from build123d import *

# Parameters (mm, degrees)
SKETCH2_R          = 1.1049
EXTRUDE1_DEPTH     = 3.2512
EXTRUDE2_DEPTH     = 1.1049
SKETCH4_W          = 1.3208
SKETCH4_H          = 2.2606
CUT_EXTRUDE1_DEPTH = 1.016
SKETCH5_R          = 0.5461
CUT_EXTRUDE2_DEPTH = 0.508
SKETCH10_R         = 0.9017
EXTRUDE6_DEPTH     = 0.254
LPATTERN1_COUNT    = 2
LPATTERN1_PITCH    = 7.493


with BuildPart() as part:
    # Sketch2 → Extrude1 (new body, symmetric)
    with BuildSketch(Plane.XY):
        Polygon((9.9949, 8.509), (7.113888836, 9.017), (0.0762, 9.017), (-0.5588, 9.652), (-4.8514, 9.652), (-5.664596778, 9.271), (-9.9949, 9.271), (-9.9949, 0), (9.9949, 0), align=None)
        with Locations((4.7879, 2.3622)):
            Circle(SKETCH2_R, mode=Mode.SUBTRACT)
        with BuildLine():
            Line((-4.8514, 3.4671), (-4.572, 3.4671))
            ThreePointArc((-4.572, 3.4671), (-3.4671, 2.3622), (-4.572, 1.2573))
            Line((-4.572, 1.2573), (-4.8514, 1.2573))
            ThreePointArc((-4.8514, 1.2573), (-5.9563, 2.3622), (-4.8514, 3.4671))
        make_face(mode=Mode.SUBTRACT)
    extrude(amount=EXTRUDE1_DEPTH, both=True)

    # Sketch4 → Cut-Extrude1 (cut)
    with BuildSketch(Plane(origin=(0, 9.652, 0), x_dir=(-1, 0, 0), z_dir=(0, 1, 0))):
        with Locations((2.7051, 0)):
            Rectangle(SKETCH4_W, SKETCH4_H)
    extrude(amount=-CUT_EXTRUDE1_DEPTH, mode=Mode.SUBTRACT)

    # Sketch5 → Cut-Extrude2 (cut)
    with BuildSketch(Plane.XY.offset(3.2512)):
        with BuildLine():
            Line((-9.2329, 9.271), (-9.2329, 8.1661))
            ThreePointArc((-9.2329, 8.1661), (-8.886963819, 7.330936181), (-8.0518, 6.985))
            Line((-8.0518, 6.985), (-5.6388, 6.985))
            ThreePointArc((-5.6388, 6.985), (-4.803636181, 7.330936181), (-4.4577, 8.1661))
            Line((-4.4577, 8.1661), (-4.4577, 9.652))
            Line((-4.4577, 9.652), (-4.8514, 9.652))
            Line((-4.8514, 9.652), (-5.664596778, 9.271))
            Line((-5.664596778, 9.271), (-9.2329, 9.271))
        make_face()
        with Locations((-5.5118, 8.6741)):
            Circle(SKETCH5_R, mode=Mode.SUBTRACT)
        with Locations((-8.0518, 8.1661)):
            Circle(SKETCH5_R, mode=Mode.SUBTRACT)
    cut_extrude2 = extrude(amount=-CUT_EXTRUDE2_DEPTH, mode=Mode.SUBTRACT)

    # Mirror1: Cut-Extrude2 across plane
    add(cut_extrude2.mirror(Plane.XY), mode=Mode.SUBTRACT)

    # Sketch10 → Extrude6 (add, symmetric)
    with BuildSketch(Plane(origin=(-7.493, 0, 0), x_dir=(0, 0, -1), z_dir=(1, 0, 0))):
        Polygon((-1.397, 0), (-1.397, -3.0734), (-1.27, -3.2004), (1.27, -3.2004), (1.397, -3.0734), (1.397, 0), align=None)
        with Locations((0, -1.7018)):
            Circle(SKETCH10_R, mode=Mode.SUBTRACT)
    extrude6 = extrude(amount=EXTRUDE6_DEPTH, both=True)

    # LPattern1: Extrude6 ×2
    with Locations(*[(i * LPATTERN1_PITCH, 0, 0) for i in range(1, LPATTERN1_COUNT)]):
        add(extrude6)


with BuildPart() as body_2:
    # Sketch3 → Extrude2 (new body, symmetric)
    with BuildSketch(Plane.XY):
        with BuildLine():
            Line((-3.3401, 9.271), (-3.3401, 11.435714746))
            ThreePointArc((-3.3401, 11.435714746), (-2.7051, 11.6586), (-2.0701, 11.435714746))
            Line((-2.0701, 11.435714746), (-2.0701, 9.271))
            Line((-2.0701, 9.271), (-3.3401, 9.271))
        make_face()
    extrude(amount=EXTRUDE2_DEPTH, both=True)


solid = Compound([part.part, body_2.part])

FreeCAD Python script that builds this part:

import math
import FreeCAD as App
import Part
import Sketcher
Q = App.Units.Quantity


def add_polygon(sketch, points):
    """Adds a closed chain of lines whose ends are joined by coincident constraints."""
    first, n = sketch.GeometryCount, len(points)
    for a, b in zip(points, points[1:] + points[:1]):
        sketch.addGeometry(Part.LineSegment(App.Vector(*a, 0), App.Vector(*b, 0)), False)
    for i in range(n):
        sketch.addConstraint(Sketcher.Constraint("Coincident", first + i, 2, first + (i + 1) % n, 1))

doc = App.newDocument("Part")
body = doc.addObject("PartDesign::Body", "Body")

sketch1 = body.newObject("Sketcher::SketchObject", "Sketch")
sketch1.AttachmentSupport = (doc.getObject("XY_Plane"), [""])
sketch1.MapMode = "FlatFace"
add_polygon(sketch1, [(9.9949, 8.509), (7.113889, 9.017), (0.0762, 9.017), (-0.5588, 9.652), (-4.8514, 9.652), (-5.664597, 9.271), (-9.9949, 9.271), (-9.9949, 0), (9.9949, 0)])
sketch1.addGeometry(Part.ArcOfCircle(Part.Circle(App.Vector(-4.8514, 2.3622, 0), App.Vector(0, 0, 1), 1.1049), math.radians(90), math.radians(270)), False)
sketch1.addGeometry(Part.LineSegment(App.Vector(-4.8514, 3.4671, 0), App.Vector(-4.572, 3.4671, 0)), False)
sketch1.addGeometry(Part.ArcOfCircle(Part.Circle(App.Vector(-4.572, 2.3622, 0), App.Vector(0, 0, 1), 1.1049), math.radians(-90), math.radians(90)), False)
sketch1.addGeometry(Part.LineSegment(App.Vector(-4.572, 1.2573, 0), App.Vector(-4.8514, 1.2573, 0)), False)
sketch1.addGeometry(Part.Circle(App.Vector(4.7879, 2.3622, 0), App.Vector(0, 0, 1), 1.1049), False)
sketch1.addConstraint(Sketcher.Constraint("Tangent", 9, 1, 10, 1))
sketch1.addConstraint(Sketcher.Constraint("Tangent", 10, 2, 11, 2))
sketch1.addConstraint(Sketcher.Constraint("Tangent", 11, 1, 12, 1))
sketch1.addConstraint(Sketcher.Constraint("Tangent", 12, 2, 9, 2))
sketch1.addConstraint(Sketcher.Constraint("Horizontal", 1))
sketch1.addConstraint(Sketcher.Constraint("Horizontal", 3))
sketch1.addConstraint(Sketcher.Constraint("Horizontal", 5))
sketch1.addConstraint(Sketcher.Constraint("Vertical", 6))
sketch1.addConstraint(Sketcher.Constraint("Horizontal", 7))
sketch1.addConstraint(Sketcher.Constraint("Vertical", 8))
sketch1.addConstraint(Sketcher.Constraint("Horizontal", 10))
sketch1.addConstraint(Sketcher.Constraint("Horizontal", 12))
sketch1.addConstraint(Sketcher.Constraint("Equal", 11, 13))
sketch1.addConstraint(Sketcher.Constraint("Symmetric", 6, 2, 7, 2, -1, 1))
sketch1.addConstraint(Sketcher.Constraint("Horizontal", 11, 3, 13, 3))
sketch1.addConstraint(Sketcher.Constraint("Vertical", 9, 3, 3, 2))
sketch1.addConstraint(Sketcher.Constraint("Equal", 2, 4))
sketch1.addConstraint(Sketcher.Constraint("Diameter", 13, Q("0.087 in")))
sketch1.addConstraint(Sketcher.Constraint("Angle", 0, Q("170 deg")))
sketch1.addConstraint(Sketcher.Constraint("Angle", 2, Q("135 deg")))
sketch1.addConstraint(Sketcher.Constraint("DistanceX", 3, 2, 3, 1, Q("0.169 in")))
sketch1.addConstraint(Sketcher.Constraint("DistanceX", 7, 1, 7, 2, Q("0.787 in")))
sketch1.addConstraint(Sketcher.Constraint("DistanceX", 10, 1, 10, 2, Q("0.011 in")))
sketch1.addConstraint(Sketcher.Constraint("DistanceY", 6, 2, 6, 1, Q("0.365 in")))
sketch1.addConstraint(Sketcher.Constraint("DistanceY", 8, 1, 8, 2, Q("0.335 in")))
sketch1.addConstraint(Sketcher.Constraint("DistanceX", 11, 3, -1, 1, Q("0.18 in")))
sketch1.addConstraint(Sketcher.Constraint("DistanceY", -1, 1, 2, 2, Q("0.38 in")))
sketch1.addConstraint(Sketcher.Constraint("DistanceY", 1, 2, 4, 2, Q("0.01 in")))
sketch1.addConstraint(Sketcher.Constraint("DistanceY", -1, 1, 9, 3, Q("0.093 in")))
sketch1.addConstraint(Sketcher.Constraint("DistanceX", 13, 3, 7, 2, Q("0.205 in")))
pad1 = body.newObject("PartDesign::Pad", "Pad")
pad1.Profile = sketch1
pad1.Length = Q("0.256 in")
pad1.Midplane = True

sketch2 = body.newObject("Sketcher::SketchObject", "Sketch001")
sketch2.AttachmentSupport = (doc.getObject("XZ_Plane"), [""])
sketch2.MapMode = "FlatFace"
sketch2.AttachmentOffset = App.Placement(App.Vector(0, 0, -0.38 * 25.4), App.Rotation())
add_polygon(sketch2, [(-2.0447, 1.1303), (-2.0447, -1.1303), (-3.3655, -1.1303), (-3.3655, 1.1303)])
sketch2.addConstraint(Sketcher.Constraint("Vertical", 0))
sketch2.addConstraint(Sketcher.Constraint("Horizontal", 1))
sketch2.addConstraint(Sketcher.Constraint("Vertical", 2))
sketch2.addConstraint(Sketcher.Constraint("Horizontal", 3))
sketch2.addConstraint(Sketcher.Constraint("DistanceX", 1, 2, 1, 1, Q("0.052 in")))
sketch2.addConstraint(Sketcher.Constraint("DistanceY", 0, 2, 0, 1, Q("0.089 in")))
sketch2.addConstraint(Sketcher.Constraint("DistanceX", 0, 2, -1, 1, Q("0.0805 in")))
sketch2.addConstraint(Sketcher.Constraint("DistanceY", 0, 2, -1, 1, Q("0.0445 in")))
pocket1 = body.newObject("PartDesign::Pocket", "Pocket")
pocket1.Profile = sketch2
pocket1.Length = Q("0.04 in")
pocket1.Reversed = True

sketch3 = body.newObject("Sketcher::SketchObject", "Sketch002")
sketch3.AttachmentSupport = (doc.getObject("XY_Plane"), [""])
sketch3.MapMode = "FlatFace"
sketch3.AttachmentOffset = App.Placement(App.Vector(0, 0, 0.128 * 25.4), App.Rotation())
sketch3.addGeometry(Part.LineSegment(App.Vector(-9.2329, 9.271, 0), App.Vector(-9.2329, 8.1661, 0)), False)
sketch3.addGeometry(Part.ArcOfCircle(Part.Circle(App.Vector(-8.0518, 8.1661, 0), App.Vector(0, 0, 1), 1.1811), math.radians(-180), math.radians(-90)), False)
sketch3.addGeometry(Part.LineSegment(App.Vector(-8.0518, 6.985, 0), App.Vector(-5.6388, 6.985, 0)), False)
sketch3.addGeometry(Part.ArcOfCircle(Part.Circle(App.Vector(-5.6388, 8.1661, 0), App.Vector(0, 0, 1), 1.1811), math.radians(-90), math.radians(0)), False)
sketch3.addGeometry(Part.LineSegment(App.Vector(-4.4577, 8.1661, 0), App.Vector(-4.4577, 9.652, 0)), False)
sketch3.addGeometry(Part.LineSegment(App.Vector(-4.4577, 9.652, 0), App.Vector(-4.8514, 9.652, 0)), False)
sketch3.addGeometry(Part.LineSegment(App.Vector(-4.8514, 9.652, 0), App.Vector(-5.664597, 9.271, 0)), False)
sketch3.addGeometry(Part.LineSegment(App.Vector(-5.664597, 9.271, 0), App.Vector(-9.2329, 9.271, 0)), False)
sketch3.addGeometry(Part.Circle(App.Vector(-8.0518, 8.1661, 0), App.Vector(0, 0, 1), 0.5461), False)
sketch3.addGeometry(Part.Circle(App.Vector(-5.5118, 8.6741, 0), App.Vector(0, 0, 1), 0.5461), False)
sketch3.addConstraint(Sketcher.Constraint("Tangent", 0, 2, 1, 1))
sketch3.addConstraint(Sketcher.Constraint("Tangent", 1, 2, 2, 1))
sketch3.addConstraint(Sketcher.Constraint("Tangent", 2, 2, 3, 1))
sketch3.addConstraint(Sketcher.Constraint("Tangent", 3, 2, 4, 1))
sketch3.addConstraint(Sketcher.Constraint("Coincident", 4, 2, 5, 1))
sketch3.addConstraint(Sketcher.Constraint("Coincident", 5, 2, 6, 1))
sketch3.addConstraint(Sketcher.Constraint("Coincident", 6, 2, 7, 1))
sketch3.addConstraint(Sketcher.Constraint("Coincident", 7, 2, 0, 1))
sketch3.addConstraint(Sketcher.Constraint("Vertical", 0))
sketch3.addConstraint(Sketcher.Constraint("Horizontal", 2))
sketch3.addConstraint(Sketcher.Constraint("Vertical", 4))
sketch3.addConstraint(Sketcher.Constraint("Horizontal", 5))
sketch3.addConstraint(Sketcher.Constraint("Horizontal", 7))
sketch3.addConstraint(Sketcher.Constraint("Coincident", 8, 3, 1, 3))
sketch3.addConstraint(Sketcher.Constraint("Equal", 1, 3))
sketch3.addConstraint(Sketcher.Constraint("Equal", 8, 9))
sketch3.addConstraint(Sketcher.Constraint("Diameter", 8, Q("0.043 in")))
sketch3.addConstraint(Sketcher.Constraint("Radius", 1, Q("0.0465 in")))
sketch3.addConstraint(Sketcher.Constraint("DistanceX", 1, 3, 9, 3, Q("0.1 in")))
sketch3.addConstraint(Sketcher.Constraint("DistanceX", 2, 1, 2, 2, Q("0.095 in")))
sketch3.addConstraint(Sketcher.Constraint("DistanceY", -1, 1, 4, 2, Q("0.38 in")))
sketch3.addConstraint(Sketcher.Constraint("DistanceY", 3, 3, 9, 3, Q("0.02 in")))
sketch3.addConstraint(Sketcher.Constraint("DistanceY", 1, 2, 7, 2, Q("0.09 in")))
sketch3.addConstraint(Sketcher.Constraint("DistanceX", 5, 2, 5, 1, Q("0.0155 in")))
sketch3.addConstraint(Sketcher.Constraint("DistanceY", 4, 1, 4, 2, Q("0.0585 in")))
sketch3.addConstraint(Sketcher.Constraint("DistanceX", 1, 3, -1, 1, Q("0.317 in")))
sketch3.addConstraint(Sketcher.Constraint("DistanceX", 7, 2, 7, 1, Q("3.568303 mm")))
pocket2 = body.newObject("PartDesign::Pocket", "Pocket001")
pocket2.Profile = sketch3
pocket2.Length = Q("0.02 in")
doc.recompute()

mirrored = body.newObject("PartDesign::Mirrored", "Mirrored")
mirrored.Originals = [pocket2]
mirrored.MirrorPlane = (doc.getObject("XY_Plane"), [""])
body.Tip = mirrored

sketch4 = body.newObject("Sketcher::SketchObject", "Sketch003")
sketch4.AttachmentSupport = (doc.getObject("YZ_Plane"), [""])
sketch4.MapMode = "FlatFace"
sketch4.AttachmentOffset = App.Placement(App.Vector(0, 0, -0.295 * 25.4), App.Rotation())
add_polygon(sketch4, [(0, 1.397), (-3.0734, 1.397), (-3.2004, 1.27), (-3.2004, -1.27), (-3.0734, -1.397), (0, -1.397)])
sketch4.addGeometry(Part.Circle(App.Vector(-1.7018, 0, 0), App.Vector(0, 0, 1), 0.9017), False)
sketch4.addConstraint(Sketcher.Constraint("Horizontal", 0))
sketch4.addConstraint(Sketcher.Constraint("Vertical", 2))
sketch4.addConstraint(Sketcher.Constraint("Horizontal", 4))
sketch4.addConstraint(Sketcher.Constraint("Vertical", 5))
sketch4.addConstraint(Sketcher.Constraint("Symmetric", 4, 2, 5, 2, -1, 1))
sketch4.addConstraint(Sketcher.Constraint("PointOnObject", 6, 3, -1))
sketch4.addConstraint(Sketcher.Constraint("Perpendicular", 1, 3))
sketch4.addConstraint(Sketcher.Constraint("Vertical", 0, 2, 3, 2))
sketch4.addConstraint(Sketcher.Constraint("Equal", 1, 3))
sketch4.addConstraint(Sketcher.Constraint("Diameter", 6, Q("0.071 in")))
sketch4.addConstraint(Sketcher.Constraint("DistanceY", 2, 2, 2, 1, Q("0.1 in")))
sketch4.addConstraint(Sketcher.Constraint("DistanceY", 5, 1, 5, 2, Q("0.11 in")))
sketch4.addConstraint(Sketcher.Constraint("DistanceX", 0, 2, 0, 1, Q("0.121 in")))
sketch4.addConstraint(Sketcher.Constraint("DistanceX", 6, 3, -1, 1, Q("0.067 in")))
pad2 = body.newObject("PartDesign::Pad", "Pad001")
pad2.Profile = sketch4
pad2.Length = Q("0.02 in")
pad2.Midplane = True
doc.recompute()

linearpattern = body.newObject("PartDesign::LinearPattern", "LinearPattern")
linearpattern.Originals = [pad2]
linearpattern.Direction = (doc.getObject("X_Axis"), [""])
linearpattern.Mode = "offset"
linearpattern.Offset = Q("0.295 in")
linearpattern.Occurrences = 2
body.Tip = linearpattern
body2 = doc.addObject("PartDesign::Body", "Body001")

sketch5 = body2.newObject("Sketcher::SketchObject", "Sketch004")
sketch5.AttachmentSupport = (doc.getObject("XY_Plane001"), [""])
sketch5.MapMode = "FlatFace"
sketch5.addGeometry(Part.LineSegment(App.Vector(-3.3401, 11.435715, 0), App.Vector(-3.3401, 9.271, 0)), False)
sketch5.addGeometry(Part.LineSegment(App.Vector(-3.3401, 9.271, 0), App.Vector(-2.0701, 9.271, 0)), False)
sketch5.addGeometry(Part.LineSegment(App.Vector(-2.0701, 9.271, 0), App.Vector(-2.0701, 11.435715, 0)), False)
sketch5.addGeometry(Part.ArcOfCircle(Part.Circle(App.Vector(-2.7051, 10.6426, 0), App.Vector(0, 0, 1), 1.016), math.radians(51.317813), math.radians(128.682187)), False)
sketch5.addConstraint(Sketcher.Constraint("Coincident", 0, 2, 1, 1))
sketch5.addConstraint(Sketcher.Constraint("Coincident", 1, 2, 2, 1))
sketch5.addConstraint(Sketcher.Constraint("Coincident", 2, 2, 3, 1))
sketch5.addConstraint(Sketcher.Constraint("Coincident", 3, 2, 0, 1))
sketch5.addConstraint(Sketcher.Constraint("Vertical", 0))
sketch5.addConstraint(Sketcher.Constraint("Horizontal", 1))
sketch5.addConstraint(Sketcher.Constraint("Vertical", 2))
sketch5.addConstraint(Sketcher.Constraint("Horizontal", 2, 2, 3, 2))
sketch5.addConstraint(Sketcher.Constraint("Radius", 3, Q("0.04 in")))
sketch5.addConstraint(Sketcher.Constraint("DistanceX", 1, 1, 1, 2, Q("0.05 in")))
sketch5.addConstraint(Sketcher.Constraint("DistanceY", -1, 1, 3, 3, Q("0.419 in")))
sketch5.addConstraint(Sketcher.Constraint("DistanceY", -1, 1, 0, 2, Q("0.365 in")))
sketch5.addConstraint(Sketcher.Constraint("DistanceX", 3, 3, -1, 1, Q("0.1065 in")))
pad3 = body2.newObject("PartDesign::Pad", "Pad002")
pad3.Profile = sketch5
pad3.Length = Q("0.087 in")
pad3.Midplane = True

doc.recompute()
